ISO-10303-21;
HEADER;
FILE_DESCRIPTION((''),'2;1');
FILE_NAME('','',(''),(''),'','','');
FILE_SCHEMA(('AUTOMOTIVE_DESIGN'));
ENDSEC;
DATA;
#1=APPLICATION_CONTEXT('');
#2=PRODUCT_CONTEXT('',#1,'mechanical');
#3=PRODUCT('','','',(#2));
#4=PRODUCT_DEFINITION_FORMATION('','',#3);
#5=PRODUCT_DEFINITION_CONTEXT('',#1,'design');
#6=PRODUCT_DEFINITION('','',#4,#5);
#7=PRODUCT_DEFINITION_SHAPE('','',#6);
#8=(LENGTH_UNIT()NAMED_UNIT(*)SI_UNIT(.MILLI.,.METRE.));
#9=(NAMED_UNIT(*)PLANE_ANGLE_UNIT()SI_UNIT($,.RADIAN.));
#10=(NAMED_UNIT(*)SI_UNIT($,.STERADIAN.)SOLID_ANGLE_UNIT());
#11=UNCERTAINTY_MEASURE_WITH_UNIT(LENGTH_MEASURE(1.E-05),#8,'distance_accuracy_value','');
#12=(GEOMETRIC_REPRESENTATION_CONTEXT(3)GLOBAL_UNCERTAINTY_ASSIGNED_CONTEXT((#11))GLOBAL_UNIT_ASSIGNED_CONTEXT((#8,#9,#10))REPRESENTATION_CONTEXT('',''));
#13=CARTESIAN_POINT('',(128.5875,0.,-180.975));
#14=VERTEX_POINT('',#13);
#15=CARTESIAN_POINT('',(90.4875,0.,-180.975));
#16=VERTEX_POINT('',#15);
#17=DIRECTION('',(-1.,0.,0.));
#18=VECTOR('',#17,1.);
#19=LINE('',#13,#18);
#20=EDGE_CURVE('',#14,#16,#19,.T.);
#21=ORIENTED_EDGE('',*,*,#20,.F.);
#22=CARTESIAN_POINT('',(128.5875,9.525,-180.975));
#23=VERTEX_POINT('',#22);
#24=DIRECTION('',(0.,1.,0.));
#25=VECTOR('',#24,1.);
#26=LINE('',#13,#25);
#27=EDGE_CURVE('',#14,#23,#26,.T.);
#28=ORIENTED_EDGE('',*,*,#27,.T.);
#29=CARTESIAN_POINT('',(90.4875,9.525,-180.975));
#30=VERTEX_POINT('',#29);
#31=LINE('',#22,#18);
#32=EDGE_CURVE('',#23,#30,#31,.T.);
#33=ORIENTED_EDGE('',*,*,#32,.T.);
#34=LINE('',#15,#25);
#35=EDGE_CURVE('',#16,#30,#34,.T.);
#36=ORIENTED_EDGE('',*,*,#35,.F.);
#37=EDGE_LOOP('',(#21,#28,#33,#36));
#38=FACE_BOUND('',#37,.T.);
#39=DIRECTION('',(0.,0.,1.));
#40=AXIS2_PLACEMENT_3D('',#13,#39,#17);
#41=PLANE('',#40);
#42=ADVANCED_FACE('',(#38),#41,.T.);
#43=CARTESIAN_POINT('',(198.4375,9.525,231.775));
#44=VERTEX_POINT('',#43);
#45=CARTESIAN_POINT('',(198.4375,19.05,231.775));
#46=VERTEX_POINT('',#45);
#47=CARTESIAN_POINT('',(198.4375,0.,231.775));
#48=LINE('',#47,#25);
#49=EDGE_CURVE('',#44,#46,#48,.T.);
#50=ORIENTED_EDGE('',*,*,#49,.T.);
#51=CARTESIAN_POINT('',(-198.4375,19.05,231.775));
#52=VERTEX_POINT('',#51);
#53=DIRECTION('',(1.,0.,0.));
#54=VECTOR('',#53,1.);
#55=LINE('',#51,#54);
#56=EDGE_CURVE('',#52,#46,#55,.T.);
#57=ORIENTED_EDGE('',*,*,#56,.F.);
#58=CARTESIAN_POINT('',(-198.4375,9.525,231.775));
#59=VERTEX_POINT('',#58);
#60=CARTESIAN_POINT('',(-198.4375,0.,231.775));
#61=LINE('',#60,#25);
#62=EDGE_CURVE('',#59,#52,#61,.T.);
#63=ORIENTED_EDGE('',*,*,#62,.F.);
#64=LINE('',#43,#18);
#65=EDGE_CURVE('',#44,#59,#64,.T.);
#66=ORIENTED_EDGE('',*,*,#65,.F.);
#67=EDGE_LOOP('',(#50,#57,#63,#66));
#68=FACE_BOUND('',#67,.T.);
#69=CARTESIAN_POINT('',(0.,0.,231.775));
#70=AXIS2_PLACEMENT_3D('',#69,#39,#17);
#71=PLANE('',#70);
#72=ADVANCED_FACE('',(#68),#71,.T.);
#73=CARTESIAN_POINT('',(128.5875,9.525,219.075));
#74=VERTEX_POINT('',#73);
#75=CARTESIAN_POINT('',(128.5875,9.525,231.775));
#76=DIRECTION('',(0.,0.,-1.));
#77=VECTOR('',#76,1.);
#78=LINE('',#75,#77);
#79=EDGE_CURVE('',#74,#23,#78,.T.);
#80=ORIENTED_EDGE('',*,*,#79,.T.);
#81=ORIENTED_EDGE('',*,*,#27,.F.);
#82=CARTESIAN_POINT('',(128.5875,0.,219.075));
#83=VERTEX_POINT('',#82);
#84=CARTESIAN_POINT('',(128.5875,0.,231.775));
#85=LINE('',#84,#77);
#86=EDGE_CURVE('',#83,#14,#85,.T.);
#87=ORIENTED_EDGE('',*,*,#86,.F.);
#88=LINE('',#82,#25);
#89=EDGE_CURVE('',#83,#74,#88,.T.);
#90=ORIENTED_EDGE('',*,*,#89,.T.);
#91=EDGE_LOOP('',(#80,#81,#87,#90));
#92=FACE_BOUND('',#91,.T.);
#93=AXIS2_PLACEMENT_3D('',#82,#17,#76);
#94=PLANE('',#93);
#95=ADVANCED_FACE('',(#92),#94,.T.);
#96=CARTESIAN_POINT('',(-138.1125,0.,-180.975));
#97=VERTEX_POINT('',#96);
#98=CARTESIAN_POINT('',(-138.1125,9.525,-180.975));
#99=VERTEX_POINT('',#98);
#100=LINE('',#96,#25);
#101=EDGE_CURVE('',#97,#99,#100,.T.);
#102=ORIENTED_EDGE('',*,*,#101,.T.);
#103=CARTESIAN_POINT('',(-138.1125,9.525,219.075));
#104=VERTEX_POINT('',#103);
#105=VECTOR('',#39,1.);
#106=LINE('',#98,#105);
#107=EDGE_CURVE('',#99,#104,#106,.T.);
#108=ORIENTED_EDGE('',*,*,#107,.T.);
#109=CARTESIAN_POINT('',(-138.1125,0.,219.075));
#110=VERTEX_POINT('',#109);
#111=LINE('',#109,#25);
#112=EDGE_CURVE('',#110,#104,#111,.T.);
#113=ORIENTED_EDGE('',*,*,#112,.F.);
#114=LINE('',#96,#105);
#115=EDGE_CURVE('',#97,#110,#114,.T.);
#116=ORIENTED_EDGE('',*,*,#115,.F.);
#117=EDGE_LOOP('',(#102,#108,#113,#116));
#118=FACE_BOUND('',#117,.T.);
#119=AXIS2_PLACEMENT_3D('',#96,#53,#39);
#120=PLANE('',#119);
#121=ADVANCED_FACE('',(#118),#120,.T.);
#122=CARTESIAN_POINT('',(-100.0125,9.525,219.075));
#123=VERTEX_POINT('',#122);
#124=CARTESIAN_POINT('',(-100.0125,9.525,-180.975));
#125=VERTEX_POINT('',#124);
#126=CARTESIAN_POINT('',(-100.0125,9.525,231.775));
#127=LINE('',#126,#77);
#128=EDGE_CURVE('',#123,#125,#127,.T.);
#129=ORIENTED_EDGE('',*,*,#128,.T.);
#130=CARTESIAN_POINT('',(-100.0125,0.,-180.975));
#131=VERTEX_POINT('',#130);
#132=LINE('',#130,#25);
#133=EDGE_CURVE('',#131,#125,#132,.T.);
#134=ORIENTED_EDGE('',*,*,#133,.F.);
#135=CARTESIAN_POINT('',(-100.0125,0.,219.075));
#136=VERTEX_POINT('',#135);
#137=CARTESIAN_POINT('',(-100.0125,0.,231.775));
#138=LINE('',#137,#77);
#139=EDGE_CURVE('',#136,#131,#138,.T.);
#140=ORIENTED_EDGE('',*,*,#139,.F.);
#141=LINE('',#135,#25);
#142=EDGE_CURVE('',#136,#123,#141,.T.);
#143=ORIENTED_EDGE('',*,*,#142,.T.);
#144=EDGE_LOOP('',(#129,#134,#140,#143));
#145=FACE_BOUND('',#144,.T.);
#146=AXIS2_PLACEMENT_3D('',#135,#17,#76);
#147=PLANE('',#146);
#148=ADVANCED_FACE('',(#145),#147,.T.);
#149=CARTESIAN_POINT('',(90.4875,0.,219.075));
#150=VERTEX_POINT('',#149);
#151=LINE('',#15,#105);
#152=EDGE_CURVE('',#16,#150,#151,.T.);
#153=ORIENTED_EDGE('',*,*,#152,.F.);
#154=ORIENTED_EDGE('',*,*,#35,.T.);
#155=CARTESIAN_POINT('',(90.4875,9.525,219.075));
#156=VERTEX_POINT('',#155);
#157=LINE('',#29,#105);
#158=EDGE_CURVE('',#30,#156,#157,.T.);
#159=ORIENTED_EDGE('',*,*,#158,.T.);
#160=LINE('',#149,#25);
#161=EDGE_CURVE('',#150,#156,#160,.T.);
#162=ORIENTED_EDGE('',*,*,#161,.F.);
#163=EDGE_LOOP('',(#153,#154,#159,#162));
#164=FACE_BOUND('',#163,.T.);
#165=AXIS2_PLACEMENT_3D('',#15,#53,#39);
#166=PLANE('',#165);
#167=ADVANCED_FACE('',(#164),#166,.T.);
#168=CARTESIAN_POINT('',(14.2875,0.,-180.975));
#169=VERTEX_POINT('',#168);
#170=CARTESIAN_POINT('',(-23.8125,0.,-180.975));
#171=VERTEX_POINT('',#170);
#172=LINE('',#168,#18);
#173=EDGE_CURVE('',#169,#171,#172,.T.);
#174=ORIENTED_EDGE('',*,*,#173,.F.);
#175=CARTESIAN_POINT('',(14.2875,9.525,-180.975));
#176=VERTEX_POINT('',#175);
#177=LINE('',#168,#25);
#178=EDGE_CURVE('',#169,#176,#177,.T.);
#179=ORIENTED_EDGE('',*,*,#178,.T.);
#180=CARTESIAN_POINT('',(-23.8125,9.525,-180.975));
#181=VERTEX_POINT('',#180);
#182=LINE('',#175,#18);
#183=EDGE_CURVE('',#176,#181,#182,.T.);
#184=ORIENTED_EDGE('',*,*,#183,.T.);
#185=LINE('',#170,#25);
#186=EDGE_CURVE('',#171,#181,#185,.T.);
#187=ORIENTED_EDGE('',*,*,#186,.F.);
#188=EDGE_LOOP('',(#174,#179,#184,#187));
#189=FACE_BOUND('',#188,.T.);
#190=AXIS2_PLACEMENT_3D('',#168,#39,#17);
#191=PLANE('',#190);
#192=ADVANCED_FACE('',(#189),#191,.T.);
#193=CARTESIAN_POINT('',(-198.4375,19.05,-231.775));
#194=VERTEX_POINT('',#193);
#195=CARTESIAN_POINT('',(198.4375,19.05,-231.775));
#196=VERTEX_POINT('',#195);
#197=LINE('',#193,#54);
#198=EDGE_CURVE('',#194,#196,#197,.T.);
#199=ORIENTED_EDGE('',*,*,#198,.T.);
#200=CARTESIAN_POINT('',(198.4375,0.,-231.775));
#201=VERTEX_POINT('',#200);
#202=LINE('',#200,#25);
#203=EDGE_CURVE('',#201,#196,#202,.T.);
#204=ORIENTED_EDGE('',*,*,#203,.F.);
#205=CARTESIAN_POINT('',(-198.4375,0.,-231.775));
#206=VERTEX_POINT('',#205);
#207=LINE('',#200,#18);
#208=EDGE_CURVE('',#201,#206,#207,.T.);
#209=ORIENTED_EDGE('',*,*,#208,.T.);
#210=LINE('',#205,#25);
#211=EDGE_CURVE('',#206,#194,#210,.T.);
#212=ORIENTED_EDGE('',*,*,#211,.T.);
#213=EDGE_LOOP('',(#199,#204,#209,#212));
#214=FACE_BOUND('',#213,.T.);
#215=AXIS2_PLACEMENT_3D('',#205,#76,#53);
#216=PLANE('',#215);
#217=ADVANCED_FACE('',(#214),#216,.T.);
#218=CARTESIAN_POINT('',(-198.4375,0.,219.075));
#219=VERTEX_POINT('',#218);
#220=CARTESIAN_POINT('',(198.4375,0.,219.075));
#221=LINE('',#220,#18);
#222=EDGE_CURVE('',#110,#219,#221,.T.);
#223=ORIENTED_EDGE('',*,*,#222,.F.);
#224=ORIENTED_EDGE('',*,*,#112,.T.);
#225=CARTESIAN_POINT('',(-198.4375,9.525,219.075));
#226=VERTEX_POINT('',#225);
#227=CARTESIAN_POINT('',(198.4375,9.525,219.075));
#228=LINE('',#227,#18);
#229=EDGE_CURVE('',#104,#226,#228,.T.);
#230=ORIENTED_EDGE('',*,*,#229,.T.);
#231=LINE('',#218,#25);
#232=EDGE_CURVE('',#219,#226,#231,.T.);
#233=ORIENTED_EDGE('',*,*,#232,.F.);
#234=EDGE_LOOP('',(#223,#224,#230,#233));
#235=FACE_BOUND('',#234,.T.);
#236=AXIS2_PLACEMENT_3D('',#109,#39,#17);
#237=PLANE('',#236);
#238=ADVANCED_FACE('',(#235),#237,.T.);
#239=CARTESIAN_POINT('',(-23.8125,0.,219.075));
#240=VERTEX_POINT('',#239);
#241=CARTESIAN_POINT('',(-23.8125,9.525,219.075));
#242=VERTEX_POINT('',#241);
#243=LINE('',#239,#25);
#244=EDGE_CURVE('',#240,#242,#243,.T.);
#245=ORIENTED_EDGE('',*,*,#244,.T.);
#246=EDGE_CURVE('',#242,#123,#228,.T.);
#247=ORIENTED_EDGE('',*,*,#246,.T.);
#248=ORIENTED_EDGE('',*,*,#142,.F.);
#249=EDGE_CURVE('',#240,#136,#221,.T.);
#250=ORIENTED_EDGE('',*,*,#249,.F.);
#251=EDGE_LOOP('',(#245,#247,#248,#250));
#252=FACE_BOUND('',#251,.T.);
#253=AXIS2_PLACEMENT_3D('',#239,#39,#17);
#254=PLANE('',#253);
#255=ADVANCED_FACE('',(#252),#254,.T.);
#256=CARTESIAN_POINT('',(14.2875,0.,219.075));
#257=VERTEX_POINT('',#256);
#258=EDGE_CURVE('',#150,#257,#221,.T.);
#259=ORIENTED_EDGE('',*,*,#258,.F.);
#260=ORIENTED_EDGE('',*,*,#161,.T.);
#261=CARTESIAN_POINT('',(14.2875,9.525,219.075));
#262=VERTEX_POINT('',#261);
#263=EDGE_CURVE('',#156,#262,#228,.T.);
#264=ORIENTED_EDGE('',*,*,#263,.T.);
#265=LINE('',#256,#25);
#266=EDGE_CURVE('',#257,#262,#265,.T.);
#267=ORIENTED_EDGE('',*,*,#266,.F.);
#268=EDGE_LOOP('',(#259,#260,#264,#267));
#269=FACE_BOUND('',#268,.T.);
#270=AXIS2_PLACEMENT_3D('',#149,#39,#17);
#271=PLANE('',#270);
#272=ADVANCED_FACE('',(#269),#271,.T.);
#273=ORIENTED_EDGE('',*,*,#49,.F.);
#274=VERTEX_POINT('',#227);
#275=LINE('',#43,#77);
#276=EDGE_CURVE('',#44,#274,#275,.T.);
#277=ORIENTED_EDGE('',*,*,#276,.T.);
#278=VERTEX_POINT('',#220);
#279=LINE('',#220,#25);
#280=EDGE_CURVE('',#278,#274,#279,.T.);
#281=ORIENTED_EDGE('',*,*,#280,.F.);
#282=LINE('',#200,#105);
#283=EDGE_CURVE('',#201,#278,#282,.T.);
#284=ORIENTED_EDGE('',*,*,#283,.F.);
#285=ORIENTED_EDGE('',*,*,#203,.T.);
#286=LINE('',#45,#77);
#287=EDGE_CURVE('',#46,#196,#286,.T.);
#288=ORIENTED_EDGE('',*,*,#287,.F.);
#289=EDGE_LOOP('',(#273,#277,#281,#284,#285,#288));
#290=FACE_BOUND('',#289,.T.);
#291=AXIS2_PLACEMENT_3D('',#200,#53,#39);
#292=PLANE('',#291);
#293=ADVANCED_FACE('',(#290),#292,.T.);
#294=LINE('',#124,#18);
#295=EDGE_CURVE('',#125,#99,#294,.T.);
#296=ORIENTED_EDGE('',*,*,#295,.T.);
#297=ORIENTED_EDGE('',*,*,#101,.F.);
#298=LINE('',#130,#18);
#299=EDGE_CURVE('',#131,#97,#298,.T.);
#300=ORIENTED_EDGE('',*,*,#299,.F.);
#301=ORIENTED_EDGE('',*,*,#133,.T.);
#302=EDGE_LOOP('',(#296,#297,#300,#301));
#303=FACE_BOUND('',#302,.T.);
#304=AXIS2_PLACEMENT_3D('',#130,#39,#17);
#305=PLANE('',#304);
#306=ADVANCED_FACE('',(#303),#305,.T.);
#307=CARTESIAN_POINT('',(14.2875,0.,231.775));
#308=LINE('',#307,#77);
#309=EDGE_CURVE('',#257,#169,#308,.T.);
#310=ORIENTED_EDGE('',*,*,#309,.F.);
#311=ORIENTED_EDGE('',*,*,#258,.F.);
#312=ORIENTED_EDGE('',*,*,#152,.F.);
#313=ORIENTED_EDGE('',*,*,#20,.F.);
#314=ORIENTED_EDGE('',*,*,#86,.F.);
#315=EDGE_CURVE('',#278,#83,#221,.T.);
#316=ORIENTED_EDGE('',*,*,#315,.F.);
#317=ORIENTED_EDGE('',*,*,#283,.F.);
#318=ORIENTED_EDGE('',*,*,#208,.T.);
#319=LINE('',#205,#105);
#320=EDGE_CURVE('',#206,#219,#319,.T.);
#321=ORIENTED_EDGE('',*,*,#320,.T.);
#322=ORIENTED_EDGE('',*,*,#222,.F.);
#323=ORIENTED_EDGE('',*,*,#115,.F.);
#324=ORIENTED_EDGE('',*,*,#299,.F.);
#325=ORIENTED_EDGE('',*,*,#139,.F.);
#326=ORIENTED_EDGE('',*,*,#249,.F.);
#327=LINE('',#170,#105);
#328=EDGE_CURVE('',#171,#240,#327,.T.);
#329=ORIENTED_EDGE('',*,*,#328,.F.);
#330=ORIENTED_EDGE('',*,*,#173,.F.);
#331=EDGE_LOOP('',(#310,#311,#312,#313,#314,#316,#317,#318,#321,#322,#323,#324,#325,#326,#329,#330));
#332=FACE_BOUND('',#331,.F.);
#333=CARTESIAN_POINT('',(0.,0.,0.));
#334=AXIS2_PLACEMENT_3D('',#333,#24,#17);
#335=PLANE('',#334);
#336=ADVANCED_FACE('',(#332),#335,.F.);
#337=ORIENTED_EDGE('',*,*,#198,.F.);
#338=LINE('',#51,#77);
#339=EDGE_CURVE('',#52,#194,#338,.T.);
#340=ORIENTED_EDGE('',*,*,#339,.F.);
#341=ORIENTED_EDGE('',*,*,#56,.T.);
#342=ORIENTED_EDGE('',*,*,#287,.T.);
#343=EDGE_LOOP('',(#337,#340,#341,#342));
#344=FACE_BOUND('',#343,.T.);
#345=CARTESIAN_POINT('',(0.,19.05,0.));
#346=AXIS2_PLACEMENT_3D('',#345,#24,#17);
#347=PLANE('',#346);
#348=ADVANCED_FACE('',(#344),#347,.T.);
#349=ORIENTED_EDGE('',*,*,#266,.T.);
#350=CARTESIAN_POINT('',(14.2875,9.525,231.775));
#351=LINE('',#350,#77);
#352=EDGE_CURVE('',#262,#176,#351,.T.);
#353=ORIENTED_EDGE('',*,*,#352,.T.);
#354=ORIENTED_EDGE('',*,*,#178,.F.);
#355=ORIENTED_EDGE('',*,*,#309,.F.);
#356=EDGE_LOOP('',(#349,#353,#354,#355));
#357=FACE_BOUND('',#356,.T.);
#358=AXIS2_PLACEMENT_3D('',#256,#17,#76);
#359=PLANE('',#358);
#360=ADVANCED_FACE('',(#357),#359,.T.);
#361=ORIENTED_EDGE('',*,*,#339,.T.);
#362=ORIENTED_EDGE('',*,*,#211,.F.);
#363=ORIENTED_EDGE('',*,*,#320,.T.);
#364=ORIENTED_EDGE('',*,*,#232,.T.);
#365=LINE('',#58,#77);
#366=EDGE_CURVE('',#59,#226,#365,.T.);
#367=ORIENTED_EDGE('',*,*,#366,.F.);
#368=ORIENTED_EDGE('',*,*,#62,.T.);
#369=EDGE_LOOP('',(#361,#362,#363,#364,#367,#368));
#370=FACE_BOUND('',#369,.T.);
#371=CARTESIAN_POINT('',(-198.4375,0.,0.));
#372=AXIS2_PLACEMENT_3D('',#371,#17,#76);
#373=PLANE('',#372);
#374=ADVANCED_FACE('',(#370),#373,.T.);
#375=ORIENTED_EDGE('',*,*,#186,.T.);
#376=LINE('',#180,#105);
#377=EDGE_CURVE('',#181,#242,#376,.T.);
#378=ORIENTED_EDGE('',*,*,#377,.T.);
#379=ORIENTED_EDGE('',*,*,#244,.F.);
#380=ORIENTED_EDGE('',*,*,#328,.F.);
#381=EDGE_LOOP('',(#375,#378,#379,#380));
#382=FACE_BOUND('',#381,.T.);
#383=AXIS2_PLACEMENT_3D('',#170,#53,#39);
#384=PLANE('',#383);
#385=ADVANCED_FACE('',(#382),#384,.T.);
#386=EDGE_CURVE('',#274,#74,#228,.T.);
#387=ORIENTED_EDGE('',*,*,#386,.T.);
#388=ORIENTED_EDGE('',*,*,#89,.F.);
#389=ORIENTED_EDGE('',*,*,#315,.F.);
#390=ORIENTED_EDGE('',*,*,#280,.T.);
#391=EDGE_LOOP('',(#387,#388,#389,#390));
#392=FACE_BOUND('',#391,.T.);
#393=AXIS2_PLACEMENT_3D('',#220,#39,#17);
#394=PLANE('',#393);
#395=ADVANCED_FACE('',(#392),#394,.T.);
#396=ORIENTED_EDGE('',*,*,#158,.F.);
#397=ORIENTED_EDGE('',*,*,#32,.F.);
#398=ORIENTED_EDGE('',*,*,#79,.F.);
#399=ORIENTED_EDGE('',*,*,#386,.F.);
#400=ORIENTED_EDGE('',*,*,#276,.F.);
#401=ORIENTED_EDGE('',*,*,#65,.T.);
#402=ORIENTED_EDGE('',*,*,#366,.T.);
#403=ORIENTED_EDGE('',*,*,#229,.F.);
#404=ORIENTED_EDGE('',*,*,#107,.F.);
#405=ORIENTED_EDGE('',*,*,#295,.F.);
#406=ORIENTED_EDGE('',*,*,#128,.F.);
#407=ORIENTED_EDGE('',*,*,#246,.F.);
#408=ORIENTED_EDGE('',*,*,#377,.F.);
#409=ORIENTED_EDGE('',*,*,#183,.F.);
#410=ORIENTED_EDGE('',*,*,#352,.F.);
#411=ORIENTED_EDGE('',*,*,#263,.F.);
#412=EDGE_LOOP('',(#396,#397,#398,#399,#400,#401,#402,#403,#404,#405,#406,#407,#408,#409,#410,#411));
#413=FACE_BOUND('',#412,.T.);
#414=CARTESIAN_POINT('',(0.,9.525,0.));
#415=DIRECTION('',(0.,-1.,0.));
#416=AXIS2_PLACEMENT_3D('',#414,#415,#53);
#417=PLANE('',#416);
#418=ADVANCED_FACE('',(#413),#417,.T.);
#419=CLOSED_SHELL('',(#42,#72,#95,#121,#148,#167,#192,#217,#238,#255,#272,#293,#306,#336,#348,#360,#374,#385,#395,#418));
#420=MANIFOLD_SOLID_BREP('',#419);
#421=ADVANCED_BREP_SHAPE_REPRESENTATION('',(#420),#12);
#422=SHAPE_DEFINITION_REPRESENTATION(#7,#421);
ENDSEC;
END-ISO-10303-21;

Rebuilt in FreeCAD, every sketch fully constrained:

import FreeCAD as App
import Part
import Sketcher

V = App.Vector
Q = App.Units.Quantity

doc = App.newDocument("Part")
body = doc.addObject("PartDesign::Body", "Body")

# Sketch on XZ plane
sketch1 = body.newObject("Sketcher::SketchObject", "Sketch")
sketch1.AttachmentSupport = (doc.getObject("XZ_Plane"), [""])
sketch1.MapMode = "FlatFace"
sketch1.addGeometry(Part.LineSegment(V(-198, -232, 0), V(-198, 232, 0)), False)
sketch1.addGeometry(Part.LineSegment(V(-198, 232, 0), V(198, 232, 0)), False)
sketch1.addGeometry(Part.LineSegment(V(198, 232, 0), V(198, -232, 0)), False)
sketch1.addGeometry(Part.LineSegment(V(198, -232, 0), V(-198, -232, 0)), False)
sketch1.addConstraint(Sketcher.Constraint("Coincident", 0, 2, 1, 1))
sketch1.addConstraint(Sketcher.Constraint("Coincident", 1, 2, 2, 1))
sketch1.addConstraint(Sketcher.Constraint("Coincident", 2, 2, 3, 1))
sketch1.addConstraint(Sketcher.Constraint("Coincident", 3, 2, 0, 1))
sketch1.addConstraint(Sketcher.Constraint("Vertical", 0))
sketch1.addConstraint(Sketcher.Constraint("Horizontal", 1))
sketch1.addConstraint(Sketcher.Constraint("Vertical", 2))
sketch1.addConstraint(Sketcher.Constraint("Horizontal", 3))
sketch1.addConstraint(Sketcher.Constraint("Symmetric", 0, 2, 2, 2, -1, 1))
sketch1.addConstraint(Sketcher.Constraint("DistanceY", 0, 1, 0, 2, Q("18.25 in")))
sketch1.addConstraint(Sketcher.Constraint("DistanceX", 1, 1, 1, 2, Q("15.625 in")))
pad1 = body.newObject("PartDesign::Pad", "Pad")
pad1.Profile = sketch1
pad1.Length = Q("0.75 in")
pad1.Reversed = True

# Sketch on XZ plane
sketch2 = body.newObject("Sketcher::SketchObject", "Sketch001")
sketch2.AttachmentSupport = (doc.getObject("XZ_Plane"), [""])
sketch2.MapMode = "FlatFace"
sketch2.addGeometry(Part.LineSegment(V(-198, 232, 0), V(-198, 219, 0)), False)
sketch2.addGeometry(Part.LineSegment(V(-198, 219, 0), V(-138, 219, 0)), False)
sketch2.addGeometry(Part.LineSegment(V(-138, 219, 0), V(-138, -181, 0)), False)
sketch2.addGeometry(Part.LineSegment(V(-138, -181, 0), V(-100, -181, 0)), False)
sketch2.addGeometry(Part.LineSegment(V(-100, -181, 0), V(-100, 219, 0)), False)
sketch2.addGeometry(Part.LineSegment(V(-100, 219, 0), V(-24, 219, 0)), False)
sketch2.addGeometry(Part.LineSegment(V(-24, 219, 0), V(-24, -181, 0)), False)
sketch2.addGeometry(Part.LineSegment(V(-24, -181, 0), V(14, -181, 0)), False)
sketch2.addGeometry(Part.LineSegment(V(14, -181, 0), V(14, 219, 0)), False)
sketch2.addGeometry(Part.LineSegment(V(14, 219, 0), V(90, 219, 0)), False)
sketch2.addGeometry(Part.LineSegment(V(90, 219, 0), V(90, -181, 0)), False)
sketch2.addGeometry(Part.LineSegment(V(90, -181, 0), V(129, -181, 0)), False)
sketch2.addGeometry(Part.LineSegment(V(129, -181, 0), V(129, 219, 0)), False)
sketch2.addGeometry(Part.LineSegment(V(129, 219, 0), V(198, 219, 0)), False)
sketch2.addGeometry(Part.LineSegment(V(198, 219, 0), V(198, 232, 0)), False)
sketch2.addGeometry(Part.LineSegment(V(198, 232, 0), V(-198, 232, 0)), False)
sketch2.addConstraint(Sketcher.Constraint("Coincident", 0, 2, 1, 1))
sketch2.addConstraint(Sketcher.Constraint("Coincident", 1, 2, 2, 1))
sketch2.addConstraint(Sketcher.Constraint("Coincident", 2, 2, 3, 1))
sketch2.addConstraint(Sketcher.Constraint("Coincident", 3, 2, 4, 1))
sketch2.addConstraint(Sketcher.Constraint("Coincident", 4, 2, 5, 1))
sketch2.addConstraint(Sketcher.Constraint("Coincident", 5, 2, 6, 1))
sketch2.addConstraint(Sketcher.Constraint("Coincident", 6, 2, 7, 1))
sketch2.addConstraint(Sketcher.Constraint("Coincident", 7, 2, 8, 1))
sketch2.addConstraint(Sketcher.Constraint("Coincident", 8, 2, 9, 1))
sketch2.addConstraint(Sketcher.Constraint("Coincident", 9, 2, 10, 1))
sketch2.addConstraint(Sketcher.Constraint("Coincident", 10, 2, 11, 1))
sketch2.addConstraint(Sketcher.Constraint("Coincident", 11, 2, 12, 1))
sketch2.addConstraint(Sketcher.Constraint("Coincident", 12, 2, 13, 1))
sketch2.addConstraint(Sketcher.Constraint("Coincident", 13, 2, 14, 1))
sketch2.addConstraint(Sketcher.Constraint("Coincident", 14, 2, 15, 1))
sketch2.addConstraint(Sketcher.Constraint("Coincident", 15, 2, 0, 1))
sketch2.addConstraint(Sketcher.Constraint("Vertical", 0))
sketch2.addConstraint(Sketcher.Constraint("Horizontal", 1))
sketch2.addConstraint(Sketcher.Constraint("Vertical", 2))
sketch2.addConstraint(Sketcher.Constraint("Horizontal", 3))
sketch2.addConstraint(Sketcher.Constraint("Vertical", 4))
sketch2.addConstraint(Sketcher.Constraint("Horizontal", 5))
sketch2.addConstraint(Sketcher.Constraint("Vertical", 6))
sketch2.addConstraint(Sketcher.Constraint("Horizontal", 7))
sketch2.addConstraint(Sketcher.Constraint("Vertical", 8))
sketch2.addConstraint(Sketcher.Constraint("Horizontal", 9))
sketch2.addConstraint(Sketcher.Constraint("Vertical", 10))
sketch2.addConstraint(Sketcher.Constraint("Horizontal", 11))
sketch2.addConstraint(Sketcher.Constraint("Vertical", 12))
sketch2.addConstraint(Sketcher.Constraint("Horizontal", 13))
sketch2.addConstraint(Sketcher.Constraint("Vertical", 14))
sketch2.addConstraint(Sketcher.Constraint("Horizontal", 15))
sketch2.addConstraint(Sketcher.Constraint("Symmetric", 0, 2, 13, 2, -2))
sketch2.addConstraint(Sketcher.Constraint("Horizontal", 1, 2, 4, 2))
sketch2.addConstraint(Sketcher.Constraint("Horizontal", 3, 2, 6, 2))
sketch2.addConstraint(Sketcher.Constraint("Horizontal", 5, 2, 8, 2))
sketch2.addConstraint(Sketcher.Constraint("Horizontal", 7, 2, 10, 2))
sketch2.addConstraint(Sketcher.Constraint("Equal", 3, 7))
sketch2.addConstraint(Sketcher.Constraint("Equal", 5, 9))
sketch2.addConstraint(Sketcher.Constraint("Equal", 7, 11))
sketch2.addConstraint(Sketcher.Constraint("DistanceX", 5, 1, 5, 2, Q("3 in")))
sketch2.addConstraint(Sketcher.Constraint("DistanceX", 3, 1, 3, 2, Q("1.5 in")))
sketch2.addConstraint(Sketcher.Constraint("DistanceY", 0, 2, 0, 1, Q("0.5 in")))
sketch2.addConstraint(Sketcher.Constraint("DistanceX", 13, 1, 13, 2, Q("2.75 in")))
sketch2.addConstraint(Sketcher.Constraint("DistanceX", 1, 1, 1, 2, Q("2.375 in")))
sketch2.addConstraint(Sketcher.Constraint("DistanceY", 2, 2, 2, 1, Q("15.75 in")))
sketch2.addConstraint(Sketcher.Constraint("DistanceY", -1, 1, 0, 2, Q("8.625 in")))
pocket1 = body.newObject("PartDesign::Pocket", "Pocket")
pocket1.Profile = sketch2
pocket1.Length = Q("0.375 in")

doc.recompute()
